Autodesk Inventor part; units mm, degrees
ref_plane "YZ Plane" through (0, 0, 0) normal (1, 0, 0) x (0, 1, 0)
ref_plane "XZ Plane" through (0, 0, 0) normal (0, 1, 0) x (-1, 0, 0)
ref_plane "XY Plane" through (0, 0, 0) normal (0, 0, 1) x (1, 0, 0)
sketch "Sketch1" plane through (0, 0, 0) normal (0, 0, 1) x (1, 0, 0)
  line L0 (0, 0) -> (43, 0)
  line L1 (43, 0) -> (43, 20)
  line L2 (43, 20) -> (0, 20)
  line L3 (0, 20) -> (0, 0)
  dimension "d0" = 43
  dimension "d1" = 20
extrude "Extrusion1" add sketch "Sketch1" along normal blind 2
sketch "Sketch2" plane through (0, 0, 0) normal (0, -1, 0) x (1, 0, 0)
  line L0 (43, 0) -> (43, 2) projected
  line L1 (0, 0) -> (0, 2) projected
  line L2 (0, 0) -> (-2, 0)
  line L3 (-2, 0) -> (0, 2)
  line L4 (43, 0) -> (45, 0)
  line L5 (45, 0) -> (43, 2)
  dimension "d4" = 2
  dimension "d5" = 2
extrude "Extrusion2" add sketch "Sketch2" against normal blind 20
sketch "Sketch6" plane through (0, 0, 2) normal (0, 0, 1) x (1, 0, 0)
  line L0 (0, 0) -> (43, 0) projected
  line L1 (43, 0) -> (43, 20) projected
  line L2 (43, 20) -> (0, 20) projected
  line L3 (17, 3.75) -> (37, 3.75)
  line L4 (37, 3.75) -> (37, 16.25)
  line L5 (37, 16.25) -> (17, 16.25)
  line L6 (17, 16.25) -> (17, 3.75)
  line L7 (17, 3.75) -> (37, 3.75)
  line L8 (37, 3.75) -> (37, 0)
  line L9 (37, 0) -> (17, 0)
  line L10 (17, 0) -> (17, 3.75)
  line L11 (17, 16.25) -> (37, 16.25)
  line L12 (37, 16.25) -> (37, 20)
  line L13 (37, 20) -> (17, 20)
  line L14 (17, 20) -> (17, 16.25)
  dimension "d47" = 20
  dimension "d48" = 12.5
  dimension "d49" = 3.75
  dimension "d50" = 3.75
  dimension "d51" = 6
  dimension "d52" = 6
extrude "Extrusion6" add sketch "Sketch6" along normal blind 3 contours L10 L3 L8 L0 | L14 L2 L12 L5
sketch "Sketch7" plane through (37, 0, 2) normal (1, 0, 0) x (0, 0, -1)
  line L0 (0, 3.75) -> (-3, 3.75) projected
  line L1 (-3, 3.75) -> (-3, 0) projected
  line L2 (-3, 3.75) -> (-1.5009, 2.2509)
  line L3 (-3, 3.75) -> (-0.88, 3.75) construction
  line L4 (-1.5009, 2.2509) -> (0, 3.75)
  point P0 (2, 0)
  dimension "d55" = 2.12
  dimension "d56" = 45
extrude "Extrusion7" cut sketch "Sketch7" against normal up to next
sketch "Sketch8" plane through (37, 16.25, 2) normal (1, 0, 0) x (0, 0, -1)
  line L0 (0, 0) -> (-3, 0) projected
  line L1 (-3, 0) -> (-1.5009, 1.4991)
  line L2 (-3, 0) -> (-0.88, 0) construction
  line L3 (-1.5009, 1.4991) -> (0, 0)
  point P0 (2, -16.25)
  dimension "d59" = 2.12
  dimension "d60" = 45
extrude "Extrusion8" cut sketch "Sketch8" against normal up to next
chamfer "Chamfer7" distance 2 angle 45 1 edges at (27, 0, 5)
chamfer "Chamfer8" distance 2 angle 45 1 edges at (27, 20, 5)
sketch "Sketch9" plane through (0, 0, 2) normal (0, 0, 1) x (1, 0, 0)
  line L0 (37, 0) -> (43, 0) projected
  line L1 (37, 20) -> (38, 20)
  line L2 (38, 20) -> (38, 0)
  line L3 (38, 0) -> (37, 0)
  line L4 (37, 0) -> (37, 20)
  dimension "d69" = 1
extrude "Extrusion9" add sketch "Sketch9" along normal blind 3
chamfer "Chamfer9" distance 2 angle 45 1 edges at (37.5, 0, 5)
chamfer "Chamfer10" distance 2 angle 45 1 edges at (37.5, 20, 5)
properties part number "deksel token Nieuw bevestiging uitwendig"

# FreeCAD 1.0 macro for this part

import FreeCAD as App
import Part
import Sketcher

V = App.Vector
Q = App.Units.Quantity


def edges_at(feature, points):
    """Names of the edges that pass closest to the given points."""
    edges = feature.Shape.Edges
    near = lambda p: min(range(len(edges)), key=lambda i: edges[i].distToShape(Part.Vertex(*p))[0])
    return sorted({f"Edge{near(p) + 1}" for p in points})

doc = App.newDocument("Part")
body = doc.addObject("PartDesign::Body", "Body")

sketch1 = body.newObject("Sketcher::SketchObject", "Sketch")
sketch1.AttachmentSupport = (doc.getObject("XY_Plane"), [""])
sketch1.MapMode = "FlatFace"
sketch1.addGeometry([
    Part.LineSegment(V(0, 20, 0), V(0, 0, 0)),
    Part.LineSegment(V(0, 0, 0), V(43, 0, 0)),
    Part.LineSegment(V(43, 0, 0), V(43, 20, 0)),
    Part.LineSegment(V(43, 20, 0), V(0, 20, 0)),
], False)
sketch1.addConstraint([
    Sketcher.Constraint("Coincident", 0, 2, 1, 1),
    Sketcher.Constraint("Coincident", 1, 2, 2, 1),
    Sketcher.Constraint("Coincident", 2, 2, 3, 1),
    Sketcher.Constraint("Coincident", 3, 2, 0, 1),
    Sketcher.Constraint("Vertical", 0),
    Sketcher.Constraint("Horizontal", 1),
    Sketcher.Constraint("Vertical", 2),
    Sketcher.Constraint("Horizontal", 3),
    Sketcher.Constraint("Coincident", 0, 2, -1, 1),
    Sketcher.Constraint("DistanceX", 1, 1, 1, 2, Q("43 mm")),
    Sketcher.Constraint("DistanceY", 0, 2, 0, 1, Q("20 mm")),
])
pad1 = body.newObject("PartDesign::Pad", "Pad")
pad1.Profile = sketch1
pad1.Length = 2

sketch2 = body.newObject("Sketcher::SketchObject", "Sketch001")
sketch2.AttachmentSupport = (doc.getObject("XZ_Plane"), [""])
sketch2.MapMode = "FlatFace"
sketch2.addGeometry([
    Part.LineSegment(V(43, 2, 0), V(43, 0, 0)),
    Part.LineSegment(V(43, 0, 0), V(45, 0, 0)),
    Part.LineSegment(V(45, 0, 0), V(43, 2, 0)),
    Part.LineSegment(V(-2, 0, 0), V(0, 0, 0)),
    Part.LineSegment(V(0, 0, 0), V(0, 2, 0)),
    Part.LineSegment(V(0, 2, 0), V(-2, 0, 0)),
], False)
sketch2.addConstraint([
    Sketcher.Constraint("Coincident", 0, 2, 1, 1),
    Sketcher.Constraint("Coincident", 1, 2, 2, 1),
    Sketcher.Constraint("Coincident", 2, 2, 0, 1),
    Sketcher.Constraint("Coincident", 3, 2, 4, 1),
    Sketcher.Constraint("Coincident", 4, 2, 5, 1),
    Sketcher.Constraint("Coincident", 5, 2, 3, 1),
    Sketcher.Constraint("Vertical", 0),
    Sketcher.Constraint("Horizontal", 1),
    Sketcher.Constraint("Horizontal", 3),
    Sketcher.Constraint("Vertical", 4),
    Sketcher.Constraint("Coincident", 3, 2, -1, 1),
    Sketcher.Constraint("PointOnObject", 0, 2, -1),
    Sketcher.Constraint("Perpendicular", 2, 5),
    Sketcher.Constraint("Horizontal", 2, 2, 4, 2),
    Sketcher.Constraint("Equal", 1, 3),
    Sketcher.Constraint("DistanceX", 1, 1, 1, 2, Q("2 mm")),
    Sketcher.Constraint("DistanceX", -1, 1, 0, 2, Q("43 mm")),
])
pad2 = body.newObject("PartDesign::Pad", "Pad001")
pad2.Profile = sketch2
pad2.Length = 20
pad2.Reversed = True

sketch3 = body.newObject("Sketcher::SketchObject", "Sketch002")
sketch3.AttachmentSupport = (doc.getObject("XY_Plane"), [""])
sketch3.MapMode = "FlatFace"
sketch3.AttachmentOffset = App.Placement(V(0, 0, 2), App.Rotation())
sketch3.addGeometry([
    Part.LineSegment(V(17, 3.8, 0), V(17, 0, 0)),
    Part.LineSegment(V(17, 0, 0), V(37, 0, 0)),
    Part.LineSegment(V(37, 0, 0), V(37, 3.8, 0)),
    Part.LineSegment(V(37, 3.8, 0), V(17, 3.8, 0)),
    Part.LineSegment(V(17, 20, 0), V(17, 16.2, 0)),
    Part.LineSegment(V(17, 16.2, 0), V(37, 16.2, 0)),
    Part.LineSegment(V(37, 16.2, 0), V(37, 20, 0)),
    Part.LineSegment(V(37, 20, 0), V(17, 20, 0)),
], False)
sketch3.addConstraint([
    Sketcher.Constraint("Coincident", 0, 2, 1, 1),
    Sketcher.Constraint("Coincident", 1, 2, 2, 1),
    Sketcher.Constraint("Coincident", 2, 2, 3, 1),
    Sketcher.Constraint("Coincident", 3, 2, 0, 1),
    Sketcher.Constraint("Coincident", 4, 2, 5, 1),
    Sketcher.Constraint("Coincident", 5, 2, 6, 1),
    Sketcher.Constraint("Coincident", 6, 2, 7, 1),
    Sketcher.Constraint("Coincident", 7, 2, 4, 1),
    Sketcher.Constraint("Vertical", 0),
    Sketcher.Constraint("Horizontal", 1),
    Sketcher.Constraint("Vertical", 2),
    Sketcher.Constraint("Horizontal", 3),
    Sketcher.Constraint("Vertical", 4),
    Sketcher.Constraint("Horizontal", 5),
    Sketcher.Constraint("Vertical", 6),
    Sketcher.Constraint("Horizontal", 7),
    Sketcher.Constraint("PointOnObject", 0, 2, -1),
    Sketcher.Constraint("Vertical", 3, 2, 4, 2),
    Sketcher.Constraint("Vertical", 2, 2, 5, 2),
    Sketcher.Constraint("Equal", 2, 4),
    Sketcher.Constraint("DistanceX", 1, 1, 1, 2, Q("20 mm")),
    Sketcher.Constraint("DistanceY", -1, 1, 6, 2, Q("20 mm")),
    Sketcher.Constraint("DistanceY", 0, 2, 0, 1, Q("3.75 mm")),
    Sketcher.Constraint("DistanceX", -1, 1, 0, 2, Q("17 mm")),
])
pad3 = body.newObject("PartDesign::Pad", "Pad002")
pad3.Profile = sketch3
pad3.Length = 3

sketch4 = body.newObject("Sketcher::SketchObject", "Sketch003")
sketch4.AttachmentSupport = (doc.getObject("YZ_Plane"), [""])
sketch4.MapMode = "FlatFace"
sketch4.AttachmentOffset = App.Placement(V(0, 0, 37), App.Rotation())
sketch4.addGeometry([
    Part.LineSegment(V(2.3, 3.5, 0), V(3.8, 2, 0)),
    Part.LineSegment(V(3.8, 2, 0), V(3.8, 5, 0)),
    Part.LineSegment(V(3.8, 5, 0), V(2.3, 3.5, 0)),
], False)
sketch4.addConstraint([
    Sketcher.Constraint("Coincident", 0, 2, 1, 1),
    Sketcher.Constraint("Coincident", 1, 2, 2, 1),
    Sketcher.Constraint("Coincident", 2, 2, 0, 1),
    Sketcher.Constraint("Vertical", 1),
    Sketcher.Constraint("Distance", 2, Q("2.12 mm")),
    Sketcher.Constraint("DistanceY", 1, 1, 1, 2, Q("3 mm")),
    Sketcher.Constraint("Angle", 2, Q("-135 deg")),
    Sketcher.Constraint("DistanceY", -1, 1, 0, 2, Q("2 mm")),
    Sketcher.Constraint("DistanceX", -1, 1, 0, 2, Q("3.75 mm")),
])
pocket1 = body.newObject("PartDesign::Pocket", "Pocket")
pocket1.Profile = sketch4
pocket1.Type = "UpToFirst"

sketch5 = body.newObject("Sketcher::SketchObject", "Sketch004")
sketch5.AttachmentSupport = (doc.getObject("YZ_Plane"), [""])
sketch5.MapMode = "FlatFace"
sketch5.AttachmentOffset = App.Placement(V(0, 0, 37), App.Rotation())
sketch5.addGeometry([
    Part.LineSegment(V(16.2, 5, 0), V(16.2, 2, 0)),
    Part.LineSegment(V(16.2, 2, 0), V(17.7, 3.5, 0)),
    Part.LineSegment(V(17.7, 3.5, 0), V(16.2, 5, 0)),
], False)
sketch5.addConstraint([
    Sketcher.Constraint("Coincident", 0, 2, 1, 1),
    Sketcher.Constraint("Coincident", 1, 2, 2, 1),
    Sketcher.Constraint("Coincident", 2, 2, 0, 1),
    Sketcher.Constraint("Vertical", 0),
    Sketcher.Constraint("Distance", 2, Q("2.12 mm")),
    Sketcher.Constraint("DistanceY", 0, 2, 0, 1, Q("3 mm")),
    Sketcher.Constraint("Angle", 2, Q("135 deg")),
    Sketcher.Constraint("DistanceY", -1, 1, 0, 2, Q("2 mm")),
    Sketcher.Constraint("DistanceX", -1, 1, 0, 2, Q("16.25 mm")),
])
pocket2 = body.newObject("PartDesign::Pocket", "Pocket001")
pocket2.Profile = sketch5
pocket2.Type = "UpToFirst"
doc.recompute()

chamfer = body.newObject("PartDesign::Chamfer", "Chamfer")
chamfer.Base = (pocket2, edges_at(pocket2, [(27, 0, 5)]))
chamfer.Size = 2
doc.recompute()

chamfer2 = body.newObject("PartDesign::Chamfer", "Chamfer001")
chamfer2.Base = (chamfer, edges_at(chamfer, [(27, 20, 5)]))
chamfer2.Size = 2

sketch6 = body.newObject("Sketcher::SketchObject", "Sketch005")
sketch6.AttachmentSupport = (doc.getObject("XY_Plane"), [""])
sketch6.MapMode = "FlatFace"
sketch6.AttachmentOffset = App.Placement(V(0, 0, 2), App.Rotation())
sketch6.addGeometry([
    Part.LineSegment(V(37, 20, 0), V(37, 0, 0)),
    Part.LineSegment(V(37, 0, 0), V(38, 0, 0)),
    Part.LineSegment(V(38, 0, 0), V(38, 20, 0)),
    Part.LineSegment(V(38, 20, 0), V(37, 20, 0)),
], False)
sketch6.addConstraint([
    Sketcher.Constraint("Coincident", 0, 2, 1, 1),
    Sketcher.Constraint("Coincident", 1, 2, 2, 1),
    Sketcher.Constraint("Coincident", 2, 2, 3, 1),
    Sketcher.Constraint("Coincident", 3, 2, 0, 1),
    Sketcher.Constraint("Vertical", 0),
    Sketcher.Constraint("Horizontal", 1),
    Sketcher.Constraint("Vertical", 2),
    Sketcher.Constraint("Horizontal", 3),
    Sketcher.Constraint("PointOnObject", 0, 2, -1),
    Sketcher.Constraint("DistanceX", 1, 1, 1, 2, Q("1 mm")),
    Sketcher.Constraint("DistanceY", 0, 2, 0, 1, Q("20 mm")),
    Sketcher.Constraint("DistanceX", -1, 1, 0, 2, Q("37 mm")),
])
pad4 = body.newObject("PartDesign::Pad", "Pad003")
pad4.Profile = sketch6
pad4.Length = 3
doc.recompute()

chamfer3 = body.newObject("PartDesign::Chamfer", "Chamfer002")
chamfer3.Base = (pad4, edges_at(pad4, [(37.5, 0, 5)]))
chamfer3.Size = 2
doc.recompute()

chamfer4 = body.newObject("PartDesign::Chamfer", "Chamfer003")
chamfer4.Base = (chamfer3, edges_at(chamfer3, [(37.5, 20, 5)]))
chamfer4.Size = 2

doc.recompute()
